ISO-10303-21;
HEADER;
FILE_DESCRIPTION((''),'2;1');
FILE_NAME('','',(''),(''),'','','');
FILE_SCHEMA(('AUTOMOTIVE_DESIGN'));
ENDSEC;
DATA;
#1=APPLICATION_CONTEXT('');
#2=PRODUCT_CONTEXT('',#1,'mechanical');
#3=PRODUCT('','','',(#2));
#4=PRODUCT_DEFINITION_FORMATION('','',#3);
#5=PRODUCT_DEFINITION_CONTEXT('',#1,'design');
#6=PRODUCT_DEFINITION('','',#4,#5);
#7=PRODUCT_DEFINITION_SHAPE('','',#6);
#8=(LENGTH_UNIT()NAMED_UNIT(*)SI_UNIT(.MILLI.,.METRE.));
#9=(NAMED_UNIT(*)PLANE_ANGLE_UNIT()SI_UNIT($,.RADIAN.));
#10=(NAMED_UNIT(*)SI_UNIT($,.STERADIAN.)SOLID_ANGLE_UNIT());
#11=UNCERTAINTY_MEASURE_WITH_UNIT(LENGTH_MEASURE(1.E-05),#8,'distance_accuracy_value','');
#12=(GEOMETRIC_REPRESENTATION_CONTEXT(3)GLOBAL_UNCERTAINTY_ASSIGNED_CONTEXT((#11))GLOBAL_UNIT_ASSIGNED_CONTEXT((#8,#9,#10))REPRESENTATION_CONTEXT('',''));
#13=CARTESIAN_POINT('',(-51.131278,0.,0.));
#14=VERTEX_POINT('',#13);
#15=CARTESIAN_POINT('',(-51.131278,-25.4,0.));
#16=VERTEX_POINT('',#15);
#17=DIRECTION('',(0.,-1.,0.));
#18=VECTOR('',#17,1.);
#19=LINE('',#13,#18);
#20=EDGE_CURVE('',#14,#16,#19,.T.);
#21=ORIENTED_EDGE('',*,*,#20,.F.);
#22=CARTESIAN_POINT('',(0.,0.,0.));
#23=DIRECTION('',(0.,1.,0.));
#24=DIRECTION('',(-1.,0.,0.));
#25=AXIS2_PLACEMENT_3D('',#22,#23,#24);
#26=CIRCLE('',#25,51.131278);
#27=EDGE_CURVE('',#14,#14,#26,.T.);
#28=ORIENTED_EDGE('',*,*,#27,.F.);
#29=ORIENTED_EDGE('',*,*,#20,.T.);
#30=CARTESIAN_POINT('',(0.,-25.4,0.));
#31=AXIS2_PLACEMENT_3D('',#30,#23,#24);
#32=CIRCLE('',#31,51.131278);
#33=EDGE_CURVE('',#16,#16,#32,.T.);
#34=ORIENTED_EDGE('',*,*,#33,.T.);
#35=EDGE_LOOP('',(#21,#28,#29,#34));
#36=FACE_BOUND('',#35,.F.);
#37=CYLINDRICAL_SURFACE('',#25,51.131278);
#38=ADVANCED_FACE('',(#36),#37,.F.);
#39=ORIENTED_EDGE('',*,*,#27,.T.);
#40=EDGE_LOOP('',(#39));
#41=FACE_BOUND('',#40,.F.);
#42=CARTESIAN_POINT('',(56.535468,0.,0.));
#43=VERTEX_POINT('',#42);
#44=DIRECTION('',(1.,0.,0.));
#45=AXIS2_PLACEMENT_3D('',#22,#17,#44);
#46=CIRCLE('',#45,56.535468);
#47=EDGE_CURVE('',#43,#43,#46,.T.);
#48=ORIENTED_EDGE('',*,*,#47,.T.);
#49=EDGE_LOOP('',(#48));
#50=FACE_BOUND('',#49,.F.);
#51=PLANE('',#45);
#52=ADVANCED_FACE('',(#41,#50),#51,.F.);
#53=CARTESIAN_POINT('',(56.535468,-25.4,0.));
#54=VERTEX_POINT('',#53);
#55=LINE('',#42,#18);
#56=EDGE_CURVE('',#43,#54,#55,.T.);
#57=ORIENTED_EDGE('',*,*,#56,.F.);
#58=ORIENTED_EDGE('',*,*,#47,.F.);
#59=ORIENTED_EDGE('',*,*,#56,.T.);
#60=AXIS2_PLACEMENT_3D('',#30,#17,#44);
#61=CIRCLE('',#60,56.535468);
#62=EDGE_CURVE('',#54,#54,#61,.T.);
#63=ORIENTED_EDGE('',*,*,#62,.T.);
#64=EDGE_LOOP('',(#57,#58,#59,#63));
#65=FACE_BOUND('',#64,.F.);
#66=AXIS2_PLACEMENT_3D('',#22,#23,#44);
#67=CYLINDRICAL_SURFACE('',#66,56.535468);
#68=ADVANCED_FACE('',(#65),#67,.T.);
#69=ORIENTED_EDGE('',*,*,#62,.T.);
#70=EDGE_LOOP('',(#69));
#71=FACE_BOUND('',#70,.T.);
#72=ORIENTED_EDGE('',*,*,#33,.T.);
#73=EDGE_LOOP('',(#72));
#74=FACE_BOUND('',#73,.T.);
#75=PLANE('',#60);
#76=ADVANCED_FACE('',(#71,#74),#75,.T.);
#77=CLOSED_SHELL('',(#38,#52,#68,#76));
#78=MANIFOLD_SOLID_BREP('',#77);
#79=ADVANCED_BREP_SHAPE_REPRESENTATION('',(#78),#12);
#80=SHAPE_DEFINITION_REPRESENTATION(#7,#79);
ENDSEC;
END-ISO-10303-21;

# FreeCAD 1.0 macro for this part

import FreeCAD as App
import Part
import Sketcher
from FreeCAD import Vector
Q = App.Units.Quantity

doc = App.newDocument("Part")
body = doc.addObject("PartDesign::Body", "Body")

sketch1 = body.newObject("Sketcher::SketchObject", "Sketch")
sketch1.AttachmentSupport = (doc.getObject("XZ_Plane"), [""])
sketch1.MapMode = "FlatFace"
sketch1.addGeometry(Part.Circle(Vector(0, 0, 0), Vector(0, 0, 1), 56.535468), False)
sketch1.addConstraint([
    Sketcher.Constraint("Coincident", 0, 3, -1, 1),
    Sketcher.Constraint("Diameter", 0, Q("113.070936 mm")),
])
pad1 = body.newObject("PartDesign::Pad", "Pad")
pad1.Profile = sketch1
pad1.Length = Q("1 in")

sketch2 = body.newObject("Sketcher::SketchObject", "Sketch001")
sketch2.AttachmentSupport = (doc.getObject("XZ_Plane"), [""])
sketch2.MapMode = "FlatFace"
sketch2.addGeometry(Part.Circle(Vector(0, 0, 0), Vector(0, 0, 1), 51.131278), False)
sketch2.addConstraint([
    Sketcher.Constraint("Coincident", 0, 3, -1, 1),
    Sketcher.Constraint("Diameter", 0, Q("102.262556 mm")),
])
pocket1 = body.newObject("PartDesign::Pocket", "Pocket")
pocket1.Profile = sketch2
pocket1.Length = Q("1 in")
pocket1.Reversed = True

doc.recompute()
